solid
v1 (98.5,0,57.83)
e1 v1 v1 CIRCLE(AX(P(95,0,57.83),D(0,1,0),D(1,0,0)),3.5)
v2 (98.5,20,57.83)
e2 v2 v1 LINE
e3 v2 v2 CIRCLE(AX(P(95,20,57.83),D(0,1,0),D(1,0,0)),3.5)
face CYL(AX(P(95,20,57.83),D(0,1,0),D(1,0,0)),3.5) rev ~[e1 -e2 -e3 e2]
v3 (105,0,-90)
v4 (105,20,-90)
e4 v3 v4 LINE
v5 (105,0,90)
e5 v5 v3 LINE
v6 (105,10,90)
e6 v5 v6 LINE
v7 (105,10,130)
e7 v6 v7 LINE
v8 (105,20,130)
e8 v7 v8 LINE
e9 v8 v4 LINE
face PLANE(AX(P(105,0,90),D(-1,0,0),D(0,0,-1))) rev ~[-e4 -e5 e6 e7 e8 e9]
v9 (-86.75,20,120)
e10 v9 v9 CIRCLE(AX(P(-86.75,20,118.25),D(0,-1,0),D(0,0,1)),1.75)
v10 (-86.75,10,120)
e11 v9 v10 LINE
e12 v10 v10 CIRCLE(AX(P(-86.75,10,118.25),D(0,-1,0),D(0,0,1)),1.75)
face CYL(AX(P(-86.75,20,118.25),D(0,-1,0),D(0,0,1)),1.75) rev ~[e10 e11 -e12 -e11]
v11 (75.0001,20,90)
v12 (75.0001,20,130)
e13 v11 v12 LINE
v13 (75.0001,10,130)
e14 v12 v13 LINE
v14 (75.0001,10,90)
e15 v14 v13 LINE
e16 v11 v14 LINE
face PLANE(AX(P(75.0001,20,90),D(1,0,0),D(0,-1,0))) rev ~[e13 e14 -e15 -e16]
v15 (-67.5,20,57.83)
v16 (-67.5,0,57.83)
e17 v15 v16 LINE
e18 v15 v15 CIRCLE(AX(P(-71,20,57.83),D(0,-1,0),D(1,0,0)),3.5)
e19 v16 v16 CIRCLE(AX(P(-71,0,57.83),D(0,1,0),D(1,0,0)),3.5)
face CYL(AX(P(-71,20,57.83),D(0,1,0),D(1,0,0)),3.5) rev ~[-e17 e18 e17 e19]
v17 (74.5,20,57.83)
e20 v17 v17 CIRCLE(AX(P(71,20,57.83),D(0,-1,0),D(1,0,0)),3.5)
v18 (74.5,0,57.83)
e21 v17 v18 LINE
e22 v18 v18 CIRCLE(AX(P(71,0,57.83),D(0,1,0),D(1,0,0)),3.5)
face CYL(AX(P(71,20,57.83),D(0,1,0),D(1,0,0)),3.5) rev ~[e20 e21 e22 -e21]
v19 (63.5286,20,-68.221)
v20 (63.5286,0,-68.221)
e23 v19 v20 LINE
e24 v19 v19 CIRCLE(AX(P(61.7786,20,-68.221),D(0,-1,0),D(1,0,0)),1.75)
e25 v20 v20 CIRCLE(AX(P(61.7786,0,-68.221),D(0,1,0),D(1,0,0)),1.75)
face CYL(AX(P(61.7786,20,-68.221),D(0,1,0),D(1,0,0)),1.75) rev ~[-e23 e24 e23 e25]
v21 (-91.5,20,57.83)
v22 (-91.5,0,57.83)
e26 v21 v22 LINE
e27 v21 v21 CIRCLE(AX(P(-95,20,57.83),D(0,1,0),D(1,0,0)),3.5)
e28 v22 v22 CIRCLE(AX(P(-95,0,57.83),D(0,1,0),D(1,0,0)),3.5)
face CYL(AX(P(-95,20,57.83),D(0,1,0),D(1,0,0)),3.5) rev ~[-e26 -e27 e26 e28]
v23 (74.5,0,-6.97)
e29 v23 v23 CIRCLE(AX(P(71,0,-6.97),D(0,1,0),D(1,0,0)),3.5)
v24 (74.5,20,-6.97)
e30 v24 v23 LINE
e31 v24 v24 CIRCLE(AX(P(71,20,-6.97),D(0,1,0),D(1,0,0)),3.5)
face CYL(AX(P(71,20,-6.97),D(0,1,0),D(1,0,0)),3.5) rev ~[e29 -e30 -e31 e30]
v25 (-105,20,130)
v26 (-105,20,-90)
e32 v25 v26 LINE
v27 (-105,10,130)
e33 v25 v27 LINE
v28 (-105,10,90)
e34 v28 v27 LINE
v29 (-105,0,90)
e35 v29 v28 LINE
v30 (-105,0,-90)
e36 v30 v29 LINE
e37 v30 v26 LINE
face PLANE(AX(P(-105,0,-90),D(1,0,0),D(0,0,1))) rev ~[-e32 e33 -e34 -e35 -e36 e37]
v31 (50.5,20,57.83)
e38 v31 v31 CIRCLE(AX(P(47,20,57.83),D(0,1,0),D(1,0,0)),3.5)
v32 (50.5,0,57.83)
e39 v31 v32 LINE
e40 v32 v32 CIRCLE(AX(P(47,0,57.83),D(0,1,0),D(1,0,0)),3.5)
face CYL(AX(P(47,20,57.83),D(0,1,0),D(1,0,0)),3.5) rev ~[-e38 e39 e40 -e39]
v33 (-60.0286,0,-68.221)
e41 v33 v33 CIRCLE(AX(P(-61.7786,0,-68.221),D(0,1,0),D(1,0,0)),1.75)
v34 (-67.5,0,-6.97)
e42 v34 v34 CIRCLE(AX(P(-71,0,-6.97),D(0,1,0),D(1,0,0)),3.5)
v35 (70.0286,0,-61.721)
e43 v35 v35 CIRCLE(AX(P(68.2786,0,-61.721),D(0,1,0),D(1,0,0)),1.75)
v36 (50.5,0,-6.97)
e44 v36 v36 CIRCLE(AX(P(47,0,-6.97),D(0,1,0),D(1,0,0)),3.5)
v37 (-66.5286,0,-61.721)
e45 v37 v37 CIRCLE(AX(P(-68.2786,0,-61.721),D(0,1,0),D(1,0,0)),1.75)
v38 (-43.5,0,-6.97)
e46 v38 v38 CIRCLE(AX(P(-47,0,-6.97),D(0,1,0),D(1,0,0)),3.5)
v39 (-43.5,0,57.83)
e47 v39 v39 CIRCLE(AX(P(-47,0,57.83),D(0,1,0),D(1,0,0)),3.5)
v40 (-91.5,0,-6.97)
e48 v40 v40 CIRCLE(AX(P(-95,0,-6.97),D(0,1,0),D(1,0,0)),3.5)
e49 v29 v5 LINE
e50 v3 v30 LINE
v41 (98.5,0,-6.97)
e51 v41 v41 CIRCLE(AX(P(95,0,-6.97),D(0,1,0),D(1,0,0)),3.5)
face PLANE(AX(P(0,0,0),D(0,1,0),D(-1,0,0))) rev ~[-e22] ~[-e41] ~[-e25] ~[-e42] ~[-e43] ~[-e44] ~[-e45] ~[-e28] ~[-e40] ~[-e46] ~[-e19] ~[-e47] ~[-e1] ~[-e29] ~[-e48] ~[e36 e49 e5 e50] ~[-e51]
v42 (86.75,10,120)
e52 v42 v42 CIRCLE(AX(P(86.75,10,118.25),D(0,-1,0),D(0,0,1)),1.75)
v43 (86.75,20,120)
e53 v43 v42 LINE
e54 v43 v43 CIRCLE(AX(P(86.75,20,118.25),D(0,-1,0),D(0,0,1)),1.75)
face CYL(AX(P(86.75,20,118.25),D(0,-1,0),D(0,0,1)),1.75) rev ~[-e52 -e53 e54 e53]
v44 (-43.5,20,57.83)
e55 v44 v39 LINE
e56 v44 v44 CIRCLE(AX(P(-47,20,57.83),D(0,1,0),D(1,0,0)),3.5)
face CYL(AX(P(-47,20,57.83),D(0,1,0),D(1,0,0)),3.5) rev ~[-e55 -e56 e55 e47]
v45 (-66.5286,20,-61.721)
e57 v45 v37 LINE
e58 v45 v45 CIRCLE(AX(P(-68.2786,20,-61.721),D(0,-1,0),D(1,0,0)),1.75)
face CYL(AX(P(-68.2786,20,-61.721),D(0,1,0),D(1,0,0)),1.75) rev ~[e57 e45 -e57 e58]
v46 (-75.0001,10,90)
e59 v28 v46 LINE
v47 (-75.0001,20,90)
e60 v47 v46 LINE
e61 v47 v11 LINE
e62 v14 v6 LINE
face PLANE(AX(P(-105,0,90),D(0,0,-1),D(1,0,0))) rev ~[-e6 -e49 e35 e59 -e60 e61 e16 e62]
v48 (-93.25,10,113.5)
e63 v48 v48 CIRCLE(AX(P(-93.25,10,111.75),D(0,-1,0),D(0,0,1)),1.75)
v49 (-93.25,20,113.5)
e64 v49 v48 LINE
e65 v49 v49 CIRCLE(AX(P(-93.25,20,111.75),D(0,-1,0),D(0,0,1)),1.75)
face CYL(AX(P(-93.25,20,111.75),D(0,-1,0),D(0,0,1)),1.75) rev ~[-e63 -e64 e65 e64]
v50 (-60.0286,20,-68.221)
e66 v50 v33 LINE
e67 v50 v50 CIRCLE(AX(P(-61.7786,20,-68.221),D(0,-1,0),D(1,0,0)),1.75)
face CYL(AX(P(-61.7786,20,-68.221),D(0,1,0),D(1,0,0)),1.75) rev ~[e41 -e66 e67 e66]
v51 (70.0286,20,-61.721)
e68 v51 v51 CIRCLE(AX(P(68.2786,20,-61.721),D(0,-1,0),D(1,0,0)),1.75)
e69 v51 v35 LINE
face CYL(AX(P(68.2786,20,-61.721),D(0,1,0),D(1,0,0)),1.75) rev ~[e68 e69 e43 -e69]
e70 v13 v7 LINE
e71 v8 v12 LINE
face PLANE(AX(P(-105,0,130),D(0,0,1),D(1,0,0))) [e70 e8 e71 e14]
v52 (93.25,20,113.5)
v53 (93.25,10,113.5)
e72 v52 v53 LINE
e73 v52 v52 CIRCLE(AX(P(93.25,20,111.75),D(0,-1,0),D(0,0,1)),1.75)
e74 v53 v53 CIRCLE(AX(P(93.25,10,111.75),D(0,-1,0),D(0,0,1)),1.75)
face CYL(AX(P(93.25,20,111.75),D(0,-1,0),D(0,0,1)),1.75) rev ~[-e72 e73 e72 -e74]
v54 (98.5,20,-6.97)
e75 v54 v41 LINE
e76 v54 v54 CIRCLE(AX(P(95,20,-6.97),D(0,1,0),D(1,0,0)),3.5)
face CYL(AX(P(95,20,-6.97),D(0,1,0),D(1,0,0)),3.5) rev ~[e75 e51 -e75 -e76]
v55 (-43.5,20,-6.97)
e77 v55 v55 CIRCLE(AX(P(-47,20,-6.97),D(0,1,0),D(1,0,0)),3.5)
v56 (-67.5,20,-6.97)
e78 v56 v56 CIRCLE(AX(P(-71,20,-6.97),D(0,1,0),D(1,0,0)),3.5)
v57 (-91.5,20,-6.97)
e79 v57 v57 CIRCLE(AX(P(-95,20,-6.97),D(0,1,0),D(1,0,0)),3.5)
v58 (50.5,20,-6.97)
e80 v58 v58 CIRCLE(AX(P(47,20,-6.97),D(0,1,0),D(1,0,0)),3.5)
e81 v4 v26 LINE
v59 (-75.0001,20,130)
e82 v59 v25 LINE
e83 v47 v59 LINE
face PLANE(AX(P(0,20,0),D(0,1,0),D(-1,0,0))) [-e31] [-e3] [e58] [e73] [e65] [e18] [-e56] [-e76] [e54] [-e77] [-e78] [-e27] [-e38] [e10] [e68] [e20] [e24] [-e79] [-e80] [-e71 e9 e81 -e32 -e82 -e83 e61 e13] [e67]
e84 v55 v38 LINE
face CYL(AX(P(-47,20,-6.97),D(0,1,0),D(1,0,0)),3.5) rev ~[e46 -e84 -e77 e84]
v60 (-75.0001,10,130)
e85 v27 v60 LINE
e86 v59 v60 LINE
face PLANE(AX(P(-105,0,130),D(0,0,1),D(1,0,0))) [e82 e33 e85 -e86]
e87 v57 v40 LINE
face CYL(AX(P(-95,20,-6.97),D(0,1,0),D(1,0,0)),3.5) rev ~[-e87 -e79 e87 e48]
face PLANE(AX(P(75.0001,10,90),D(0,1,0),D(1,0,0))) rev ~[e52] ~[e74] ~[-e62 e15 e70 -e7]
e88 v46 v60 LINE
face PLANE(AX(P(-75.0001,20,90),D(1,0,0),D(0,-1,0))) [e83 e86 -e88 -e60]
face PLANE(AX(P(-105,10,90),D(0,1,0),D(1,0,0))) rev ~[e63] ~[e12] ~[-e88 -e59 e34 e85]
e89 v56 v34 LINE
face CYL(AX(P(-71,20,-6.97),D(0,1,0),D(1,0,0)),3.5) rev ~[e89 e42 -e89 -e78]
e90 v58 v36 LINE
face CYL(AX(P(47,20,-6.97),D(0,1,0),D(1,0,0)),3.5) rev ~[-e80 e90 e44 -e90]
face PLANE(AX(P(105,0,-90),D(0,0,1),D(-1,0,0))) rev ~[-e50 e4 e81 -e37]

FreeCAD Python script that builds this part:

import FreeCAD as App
import Part
import Sketcher


def add_polygon(sketch, points):
    """Adds a closed chain of lines whose ends are joined by coincident constraints."""
    first, n = sketch.GeometryCount, len(points)
    for a, b in zip(points, points[1:] + points[:1]):
        sketch.addGeometry(Part.LineSegment(App.Vector(*a, 0), App.Vector(*b, 0)), False)
    for i in range(n):
        sketch.addConstraint(Sketcher.Constraint("Coincident", first + i, 2, first + (i + 1) % n, 1))

doc = App.newDocument("Part")
params = doc.addObject("Spreadsheet::Sheet", "Params")
for row, (alias, value) in enumerate([
    ("sketch1_width", "210 mm"),
    ("sketch1_height", "180 mm"),
    ("pad1_length", "20 mm"),
    ("sketch2_diameter", "7 mm"),
    ("pocket1_length", "20 mm"),
    ("sketch3_width", "30 mm"),
    ("sketch3_height", "10 mm"),
    ("pad2_length", "40 mm"),
    ("sketch4_diameter", "3.5 mm"),
    ("hole_diameter", "3.5 mm"),
    ("sketch5_diameter", "3.5 mm"),
    ("pocket2_length", "20 mm"),
], start=1):
    params.set(f"A{row}", alias)
    params.set(f"B{row}", "=" + value)
    params.setAlias(f"B{row}", alias)

body = doc.addObject("PartDesign::Body", "Body")

# Sketch on XZ plane
sketch1 = body.newObject("Sketcher::SketchObject", "Sketch")
sketch1.AttachmentSupport = (doc.getObject("XZ_Plane"), [""])
sketch1.MapMode = "FlatFace"
add_polygon(sketch1, [(-105, -90), (-105, 90), (105, 90), (105, -90)])  # lines 0-3
sketch1.addConstraint([
    Sketcher.Constraint("Vertical", 0),
    Sketcher.Constraint("Horizontal", 1),
    Sketcher.Constraint("Vertical", 2),
    Sketcher.Constraint("Horizontal", 3),
    Sketcher.Constraint("Symmetric", 0, 2, 2, 2, -1, 1),
    Sketcher.Constraint("DistanceX", 1, 1, 1, 2, 210.0),
    Sketcher.Constraint("DistanceY", 0, 1, 0, 2, 180.0),
])
sketch1.setExpression("Constraints[9]", "Params.sketch1_width")
sketch1.setExpression("Constraints[10]", "Params.sketch1_height")
pad1 = body.newObject("PartDesign::Pad", "Pad")
pad1.Profile = sketch1
pad1.setExpression("Length", "Params.pad1_length")
pad1.Reversed = True

# Sketch on XZ plane
sketch2 = body.newObject("Sketcher::SketchObject", "Sketch001")
sketch2.AttachmentSupport = (doc.getObject("XZ_Plane"), [""])
sketch2.MapMode = "FlatFace"
sketch2.AttachmentOffset = App.Placement(App.Vector(0, 0, -20), App.Rotation())
sketch2.addGeometry([
    Part.Circle(App.Vector(-95, 57.8, 0), App.Vector(0, 0, 1), 3.5),  # 0
    Part.Circle(App.Vector(-71, 57.8, 0), App.Vector(0, 0, 1), 3.5),  # 1
    Part.Circle(App.Vector(-47, 57.8, 0), App.Vector(0, 0, 1), 3.5),  # 2
    Part.Circle(App.Vector(-47, -7, 0), App.Vector(0, 0, 1), 3.5),  # 3
    Part.Circle(App.Vector(-71, -7, 0), App.Vector(0, 0, 1), 3.5),  # 4
    Part.Circle(App.Vector(-95, -7, 0), App.Vector(0, 0, 1), 3.5),  # 5
    Part.Circle(App.Vector(95, 57.8, 0), App.Vector(0, 0, 1), 3.5),  # 6
    Part.Circle(App.Vector(71, 57.8, 0), App.Vector(0, 0, 1), 3.5),  # 7
    Part.Circle(App.Vector(47, 57.8, 0), App.Vector(0, 0, 1), 3.5),  # 8
    Part.Circle(App.Vector(47, -7, 0), App.Vector(0, 0, 1), 3.5),  # 9
    Part.Circle(App.Vector(71, -7, 0), App.Vector(0, 0, 1), 3.5),  # 10
    Part.Circle(App.Vector(95, -7, 0), App.Vector(0, 0, 1), 3.5),  # 11
], False)
sketch2.addConstraint([
    Sketcher.Constraint("Equal", 0, 1),
    Sketcher.Constraint("Equal", 1, 2),
    Sketcher.Constraint("Equal", 2, 3),
    Sketcher.Constraint("Equal", 3, 4),
    Sketcher.Constraint("Equal", 4, 5),
    Sketcher.Constraint("Equal", 5, 6),
    Sketcher.Constraint("Equal", 6, 7),
    Sketcher.Constraint("Equal", 7, 8),
    Sketcher.Constraint("Equal", 8, 9),
    Sketcher.Constraint("Equal", 9, 10),
    Sketcher.Constraint("Equal", 10, 11),
    Sketcher.Constraint("Symmetric", 0, 3, 6, 3, -2),
    Sketcher.Constraint("Symmetric", 1, 3, 7, 3, -2),
    Sketcher.Constraint("Symmetric", 2, 3, 8, 3, -2),
    Sketcher.Constraint("Symmetric", 3, 3, 9, 3, -2),
    Sketcher.Constraint("Symmetric", 4, 3, 10, 3, -2),
    Sketcher.Constraint("Symmetric", 5, 3, 11, 3, -2),
    Sketcher.Constraint("Horizontal", 0, 3, 1, 3),
    Sketcher.Constraint("Horizontal", 1, 3, 2, 3),
    Sketcher.Constraint("Horizontal", 3, 3, 4, 3),
    Sketcher.Constraint("Horizontal", 4, 3, 5, 3),
    Sketcher.Constraint("Vertical", 2, 3, 3, 3),
    Sketcher.Constraint("Vertical", 1, 3, 4, 3),
    Sketcher.Constraint("Vertical", 0, 3, 5, 3),
    Sketcher.Constraint("Diameter", 0, 7.0),
    Sketcher.Constraint("DistanceX", 0, 3, 1, 3, 24.0),
    Sketcher.Constraint("DistanceX", 1, 3, 2, 3, 24.0),
    Sketcher.Constraint("DistanceX", 0, 3, -1, 1, 95.0),
    Sketcher.Constraint("DistanceY", 3, 3, 2, 3, 64.8),
    Sketcher.Constraint("DistanceY", -1, 1, 0, 3, 57.83),
])
sketch2.setExpression("Constraints[24]", "Params.sketch2_diameter")
pocket1 = body.newObject("PartDesign::Pocket", "Pocket")
pocket1.Profile = sketch2
pocket1.setExpression("Length", "Params.pocket1_length")
pocket1.Reversed = True

# Sketch on XY plane
sketch3 = body.newObject("Sketcher::SketchObject", "Sketch002")
sketch3.AttachmentSupport = (doc.getObject("XY_Plane"), [""])
sketch3.MapMode = "FlatFace"
sketch3.AttachmentOffset = App.Placement(App.Vector(0, 0, 90), App.Rotation())
add_polygon(sketch3, [(-105, 20), (-105, 10), (-75, 10), (-75, 20)])  # lines 0-3
add_polygon(sketch3, [(75, 20), (75, 10), (105, 10), (105, 20)])  # lines 4-7
sketch3.addConstraint([
    Sketcher.Constraint("Vertical", 0),
    Sketcher.Constraint("Horizontal", 1),
    Sketcher.Constraint("Vertical", 2),
    Sketcher.Constraint("Horizontal", 3),
    Sketcher.Constraint("Vertical", 4),
    Sketcher.Constraint("Horizontal", 5),
    Sketcher.Constraint("Vertical", 6),
    Sketcher.Constraint("Horizontal", 7),
    Sketcher.Constraint("Symmetric", 1, 2, 4, 2, -2),
    Sketcher.Constraint("Symmetric", 3, 2, 6, 2, -2),
    Sketcher.Constraint("DistanceX", 1, 1, 1, 2, 30.0),
    Sketcher.Constraint("DistanceY", 0, 2, 0, 1, 10.0),
    Sketcher.Constraint("DistanceY", -1, 1, 0, 2, 10.0),
    Sketcher.Constraint("DistanceX", 0, 2, -1, 1, 105.0),
])
sketch3.setExpression("Constraints[18]", "Params.sketch3_width")
sketch3.setExpression("Constraints[19]", "Params.sketch3_height")
pad2 = body.newObject("PartDesign::Pad", "Pad001")
pad2.Profile = sketch3
pad2.setExpression("Length", "Params.pad2_length")

# Sketch on XZ plane
sketch4 = body.newObject("Sketcher::SketchObject", "Sketch003")
sketch4.AttachmentSupport = (doc.getObject("XZ_Plane"), [""])
sketch4.MapMode = "FlatFace"
sketch4.AttachmentOffset = App.Placement(App.Vector(0, 0, -20), App.Rotation())
sketch4.addGeometry([
    Part.Circle(App.Vector(-86.8, 118.2, 0), App.Vector(0, 0, 1), 1.8),
    Part.Circle(App.Vector(-93.2, 111.8, 0), App.Vector(0, 0, 1), 1.8),
    Part.Circle(App.Vector(86.8, 118.2, 0), App.Vector(0, 0, 1), 1.8),
    Part.Circle(App.Vector(93.2, 111.8, 0), App.Vector(0, 0, 1), 1.8),
], False)
sketch4.addConstraint([
    Sketcher.Constraint("Equal", 0, 1),
    Sketcher.Constraint("Equal", 1, 2),
    Sketcher.Constraint("Equal", 2, 3),
    Sketcher.Constraint("Symmetric", 0, 3, 2, 3, -2),
    Sketcher.Constraint("Symmetric", 1, 3, 3, 3, -2),
    Sketcher.Constraint("Diameter", 0, 3.5),
    Sketcher.Constraint("DistanceX", 1, 3, 2, 3, 180.0),
    Sketcher.Constraint("DistanceX", 1, 3, 0, 3, 6.5),
    Sketcher.Constraint("DistanceY", 1, 3, 0, 3, 6.5),
    Sketcher.Constraint("DistanceY", -1, 1, 0, 3, 118.25),
])
sketch4.setExpression("Constraints[5]", "Params.sketch4_diameter")
doc.recompute()
hole = body.newObject("PartDesign::Hole", "Hole")
hole.Profile = sketch4
hole.ThreadType = "None"
hole.setExpression("Diameter", "Params.hole_diameter")
hole.DepthType = "ThroughAll"
hole.Reversed = True

# Sketch on XZ plane
sketch5 = body.newObject("Sketcher::SketchObject", "Sketch004")
sketch5.AttachmentSupport = (doc.getObject("XZ_Plane"), [""])
sketch5.MapMode = "FlatFace"
sketch5.AttachmentOffset = App.Placement(App.Vector(0, 0, -20), App.Rotation())
sketch5.addGeometry([
    Part.Circle(App.Vector(61.8, -68.2, 0), App.Vector(0, 0, 1), 1.8),
    Part.Circle(App.Vector(68.3, -61.7, 0), App.Vector(0, 0, 1), 1.8),
    Part.Circle(App.Vector(-61.8, -68.2, 0), App.Vector(0, 0, 1), 1.8),
    Part.Circle(App.Vector(-68.3, -61.7, 0), App.Vector(0, 0, 1), 1.8),
], False)
sketch5.addConstraint([
    Sketcher.Constraint("Equal", 0, 1),
    Sketcher.Constraint("Equal", 1, 2),
    Sketcher.Constraint("Equal", 2, 3),
    Sketcher.Constraint("Symmetric", 0, 3, 2, 3, -2),
    Sketcher.Constraint("Symmetric", 1, 3, 3, 3, -2),
    Sketcher.Constraint("Diameter", 0, 3.5),
    Sketcher.Constraint("DistanceX", 0, 3, 1, 3, 6.5),
    Sketcher.Constraint("DistanceY", 0, 3, 1, 3, 6.5),
    Sketcher.Constraint("DistanceY", 0, 3, -1, 1, 68.221),
    Sketcher.Constraint("DistanceX", -1, 1, 0, 3, 61.7786),
])
sketch5.setExpression("Constraints[5]", "Params.sketch5_diameter")
pocket2 = body.newObject("PartDesign::Pocket", "Pocket001")
pocket2.Profile = sketch5
pocket2.setExpression("Length", "Params.pocket2_length")
pocket2.Reversed = True

doc.recompute()
